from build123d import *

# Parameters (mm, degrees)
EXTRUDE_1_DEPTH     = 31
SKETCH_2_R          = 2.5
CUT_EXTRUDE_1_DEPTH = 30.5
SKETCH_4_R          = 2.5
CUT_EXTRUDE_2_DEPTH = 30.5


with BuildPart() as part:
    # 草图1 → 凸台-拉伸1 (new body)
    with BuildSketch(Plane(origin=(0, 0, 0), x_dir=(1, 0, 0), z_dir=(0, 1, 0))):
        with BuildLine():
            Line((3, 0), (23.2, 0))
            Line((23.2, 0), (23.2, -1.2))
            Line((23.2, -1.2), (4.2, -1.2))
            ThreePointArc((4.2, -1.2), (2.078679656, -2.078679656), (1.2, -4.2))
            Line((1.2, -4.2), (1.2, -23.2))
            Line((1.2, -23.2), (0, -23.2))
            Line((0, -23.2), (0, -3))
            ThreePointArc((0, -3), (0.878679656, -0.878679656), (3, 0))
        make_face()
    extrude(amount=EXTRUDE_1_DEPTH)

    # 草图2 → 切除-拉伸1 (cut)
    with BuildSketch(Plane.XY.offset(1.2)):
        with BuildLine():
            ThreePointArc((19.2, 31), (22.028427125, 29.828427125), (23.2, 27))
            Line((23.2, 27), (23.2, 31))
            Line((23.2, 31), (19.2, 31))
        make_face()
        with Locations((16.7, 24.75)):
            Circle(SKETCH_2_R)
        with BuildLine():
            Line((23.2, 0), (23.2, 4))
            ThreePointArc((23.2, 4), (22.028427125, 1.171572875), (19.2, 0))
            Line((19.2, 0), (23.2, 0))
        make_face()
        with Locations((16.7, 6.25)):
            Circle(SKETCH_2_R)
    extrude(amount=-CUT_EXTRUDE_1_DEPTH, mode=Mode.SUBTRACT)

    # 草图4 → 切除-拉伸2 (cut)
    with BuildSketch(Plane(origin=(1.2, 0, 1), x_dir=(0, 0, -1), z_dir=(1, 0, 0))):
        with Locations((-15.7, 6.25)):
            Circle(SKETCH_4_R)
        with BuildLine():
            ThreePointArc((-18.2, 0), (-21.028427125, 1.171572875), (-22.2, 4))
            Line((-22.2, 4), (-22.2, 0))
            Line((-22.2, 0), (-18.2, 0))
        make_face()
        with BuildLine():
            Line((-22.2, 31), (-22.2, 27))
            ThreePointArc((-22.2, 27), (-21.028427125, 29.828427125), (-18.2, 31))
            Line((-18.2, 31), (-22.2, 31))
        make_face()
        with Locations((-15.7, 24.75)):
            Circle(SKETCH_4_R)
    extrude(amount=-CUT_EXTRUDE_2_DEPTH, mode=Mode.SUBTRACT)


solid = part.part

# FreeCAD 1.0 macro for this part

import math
import FreeCAD as App
import Part
import Sketcher

V = App.Vector
Q = App.Units.Quantity

doc = App.newDocument("Part")
body = doc.addObject("PartDesign::Body", "Body")

# Sketch on XZ plane
sketch1 = body.newObject("Sketcher::SketchObject", "Sketch")
sketch1.AttachmentSupport = (doc.getObject("XZ_Plane"), [""])
sketch1.MapMode = "FlatFace"
sketch1.addGeometry([
    Part.LineSegment(V(23.2, 0, 0), V(3, 0, 0)),  # 0
    Part.ArcOfCircle(Part.Circle(V(3, 3, 0), V(0, 0, 1), 3), math.radians(180), math.radians(270)),  # 1
    Part.LineSegment(V(0, 3, 0), V(0, 23.2, 0)),  # 2
    Part.LineSegment(V(0, 23.2, 0), V(1.2, 23.2, 0)),  # 3
    Part.LineSegment(V(1.2, 23.2, 0), V(1.2, 4.2, 0)),  # 4
    Part.ArcOfCircle(Part.Circle(V(4.2, 4.2, 0), V(0, 0, 1), 3), math.radians(180), math.radians(270)),  # 5
    Part.LineSegment(V(4.2, 1.2, 0), V(23.2, 1.2, 0)),  # 6
    Part.LineSegment(V(23.2, 1.2, 0), V(23.2, 0, 0)),  # 7
], False)
sketch1.addConstraint([
    Sketcher.Constraint("Tangent", 0, 2, 1, 2),
    Sketcher.Constraint("Tangent", 1, 1, 2, 1),
    Sketcher.Constraint("Coincident", 2, 2, 3, 1),
    Sketcher.Constraint("Coincident", 3, 2, 4, 1),
    Sketcher.Constraint("Tangent", 4, 2, 5, 1),
    Sketcher.Constraint("Tangent", 5, 2, 6, 1),
    Sketcher.Constraint("Coincident", 6, 2, 7, 1),
    Sketcher.Constraint("Coincident", 7, 2, 0, 1),
    Sketcher.Constraint("Horizontal", 0),
    Sketcher.Constraint("Vertical", 2),
    Sketcher.Constraint("Horizontal", 3),
    Sketcher.Constraint("Vertical", 4),
    Sketcher.Constraint("Horizontal", 6),
    Sketcher.Constraint("Vertical", 7),
    Sketcher.Constraint("Equal", 1, 5),
    Sketcher.Constraint("PointOnObject", 0, 2, -1),
    Sketcher.Constraint("PointOnObject", 1, 1, -2),
    Sketcher.Constraint("Equal", 0, 2),
    Sketcher.Constraint("Equal", 6, 4),
    Sketcher.Constraint("Radius", 1, Q("3 mm")),
    Sketcher.Constraint("DistanceX", 6, 1, 6, 2, Q("19 mm")),
    Sketcher.Constraint("DistanceX", 0, 2, 0, 1, Q("20.2 mm")),
])
pad1 = body.newObject("PartDesign::Pad", "Pad")
pad1.Profile = sketch1
pad1.Length = 31
pad1.Reversed = True

# Sketch on XY plane
sketch2 = body.newObject("Sketcher::SketchObject", "Sketch001")
sketch2.AttachmentSupport = (doc.getObject("XY_Plane"), [""])
sketch2.MapMode = "FlatFace"
sketch2.AttachmentOffset = App.Placement(V(0, 0, 1.2), App.Rotation())
sketch2.addGeometry([
    Part.ArcOfCircle(Part.Circle(V(19.2, 27, 0), V(0, 0, 1), 4), math.radians(0), math.radians(90)),  # 0
    Part.LineSegment(V(23.2, 27, 0), V(23.2, 31, 0)),  # 1
    Part.LineSegment(V(23.2, 31, 0), V(19.2, 31, 0)),  # 2
    Part.Circle(V(16.7, 24.8, 0), V(0, 0, 1), 2.5),  # 3
    Part.LineSegment(V(23.2, 0, 0), V(23.2, 4, 0)),  # 4
    Part.ArcOfCircle(Part.Circle(V(19.2, 4, 0), V(0, 0, 1), 4), math.radians(-90), math.radians(0)),  # 5
    Part.LineSegment(V(19.2, 0, 0), V(23.2, 0, 0)),  # 6
    Part.Circle(V(16.7, 6.2, 0), V(0, 0, 1), 2.5),  # 7
], False)
sketch2.addConstraint([
    Sketcher.Constraint("Tangent", 0, 1, 1, 1),
    Sketcher.Constraint("Coincident", 1, 2, 2, 1),
    Sketcher.Constraint("Tangent", 2, 2, 0, 2),
    Sketcher.Constraint("Tangent", 4, 2, 5, 2),
    Sketcher.Constraint("Tangent", 5, 1, 6, 1),
    Sketcher.Constraint("Coincident", 6, 2, 4, 1),
    Sketcher.Constraint("Vertical", 1),
    Sketcher.Constraint("Horizontal", 2),
    Sketcher.Constraint("Vertical", 4),
    Sketcher.Constraint("Horizontal", 6),
    Sketcher.Constraint("Equal", 0, 5),
    Sketcher.Constraint("Equal", 3, 7),
    Sketcher.Constraint("PointOnObject", 5, 1, -1),
    Sketcher.Constraint("Vertical", 0, 3, 5, 3),
    Sketcher.Constraint("Vertical", 3, 3, 7, 3),
    Sketcher.Constraint("Diameter", 3, Q("5 mm")),
    Sketcher.Constraint("Radius", 0, Q("4 mm")),
    Sketcher.Constraint("DistanceY", -1, 1, 0, 3, Q("27 mm")),
    Sketcher.Constraint("DistanceX", -1, 1, 0, 3, Q("19.2 mm")),
    Sketcher.Constraint("DistanceX", -1, 1, 3, 3, Q("16.7 mm")),
    Sketcher.Constraint("DistanceY", 7, 3, 3, 3, Q("18.5 mm")),
    Sketcher.Constraint("DistanceY", -1, 1, 3, 3, Q("24.75 mm")),
])
pocket1 = body.newObject("PartDesign::Pocket", "Pocket")
pocket1.Profile = sketch2
pocket1.Length = 30.5

# Sketch on YZ plane
sketch3 = body.newObject("Sketcher::SketchObject", "Sketch002")
sketch3.AttachmentSupport = (doc.getObject("YZ_Plane"), [""])
sketch3.MapMode = "FlatFace"
sketch3.AttachmentOffset = App.Placement(V(0, 0, 1.2), App.Rotation())
sketch3.addGeometry([
    Part.Circle(V(6.2, 16.7, 0), V(0, 0, 1), 2.5),  # 0
    Part.ArcOfCircle(Part.Circle(V(4, 19.2, 0), V(0, 0, 1), 4), math.radians(90), math.radians(180)),  # 1
    Part.LineSegment(V(4, 23.2, 0), V(0, 23.2, 0)),  # 2
    Part.LineSegment(V(0, 23.2, 0), V(0, 19.2, 0)),  # 3
    Part.LineSegment(V(31, 23.2, 0), V(27, 23.2, 0)),  # 4
    Part.ArcOfCircle(Part.Circle(V(27, 19.2, 0), V(0, 0, 1), 4), math.radians(0), math.radians(90)),  # 5
    Part.LineSegment(V(31, 19.2, 0), V(31, 23.2, 0)),  # 6
    Part.Circle(V(24.8, 16.7, 0), V(0, 0, 1), 2.5),  # 7
], False)
sketch3.addConstraint([
    Sketcher.Constraint("Tangent", 1, 1, 2, 1),
    Sketcher.Constraint("Coincident", 2, 2, 3, 1),
    Sketcher.Constraint("Tangent", 3, 2, 1, 2),
    Sketcher.Constraint("Tangent", 4, 2, 5, 2),
    Sketcher.Constraint("Tangent", 5, 1, 6, 1),
    Sketcher.Constraint("Coincident", 6, 2, 4, 1),
    Sketcher.Constraint("Horizontal", 2),
    Sketcher.Constraint("Vertical", 3),
    Sketcher.Constraint("Horizontal", 4),
    Sketcher.Constraint("Vertical", 6),
    Sketcher.Constraint("Equal", 1, 5),
    Sketcher.Constraint("Equal", 0, 7),
    Sketcher.Constraint("PointOnObject", 2, 2, -2),
    Sketcher.Constraint("Horizontal", 1, 3, 5, 3),
    Sketcher.Constraint("Horizontal", 0, 3, 7, 3),
    Sketcher.Constraint("Diameter", 0, Q("5 mm")),
    Sketcher.Constraint("Radius", 1, Q("4 mm")),
    Sketcher.Constraint("DistanceX", -1, 1, 5, 3, Q("27 mm")),
    Sketcher.Constraint("DistanceY", -1, 1, 0, 3, Q("16.7 mm")),
    Sketcher.Constraint("DistanceY", -1, 1, 1, 3, Q("19.2 mm")),
    Sketcher.Constraint("DistanceX", 0, 3, 7, 3, Q("18.5 mm")),
    Sketcher.Constraint("DistanceX", -1, 1, 0, 3, Q("6.25 mm")),
])
pocket2 = body.newObject("PartDesign::Pocket", "Pocket001")
pocket2.Profile = sketch3
pocket2.Length = 30.5

doc.recompute()
